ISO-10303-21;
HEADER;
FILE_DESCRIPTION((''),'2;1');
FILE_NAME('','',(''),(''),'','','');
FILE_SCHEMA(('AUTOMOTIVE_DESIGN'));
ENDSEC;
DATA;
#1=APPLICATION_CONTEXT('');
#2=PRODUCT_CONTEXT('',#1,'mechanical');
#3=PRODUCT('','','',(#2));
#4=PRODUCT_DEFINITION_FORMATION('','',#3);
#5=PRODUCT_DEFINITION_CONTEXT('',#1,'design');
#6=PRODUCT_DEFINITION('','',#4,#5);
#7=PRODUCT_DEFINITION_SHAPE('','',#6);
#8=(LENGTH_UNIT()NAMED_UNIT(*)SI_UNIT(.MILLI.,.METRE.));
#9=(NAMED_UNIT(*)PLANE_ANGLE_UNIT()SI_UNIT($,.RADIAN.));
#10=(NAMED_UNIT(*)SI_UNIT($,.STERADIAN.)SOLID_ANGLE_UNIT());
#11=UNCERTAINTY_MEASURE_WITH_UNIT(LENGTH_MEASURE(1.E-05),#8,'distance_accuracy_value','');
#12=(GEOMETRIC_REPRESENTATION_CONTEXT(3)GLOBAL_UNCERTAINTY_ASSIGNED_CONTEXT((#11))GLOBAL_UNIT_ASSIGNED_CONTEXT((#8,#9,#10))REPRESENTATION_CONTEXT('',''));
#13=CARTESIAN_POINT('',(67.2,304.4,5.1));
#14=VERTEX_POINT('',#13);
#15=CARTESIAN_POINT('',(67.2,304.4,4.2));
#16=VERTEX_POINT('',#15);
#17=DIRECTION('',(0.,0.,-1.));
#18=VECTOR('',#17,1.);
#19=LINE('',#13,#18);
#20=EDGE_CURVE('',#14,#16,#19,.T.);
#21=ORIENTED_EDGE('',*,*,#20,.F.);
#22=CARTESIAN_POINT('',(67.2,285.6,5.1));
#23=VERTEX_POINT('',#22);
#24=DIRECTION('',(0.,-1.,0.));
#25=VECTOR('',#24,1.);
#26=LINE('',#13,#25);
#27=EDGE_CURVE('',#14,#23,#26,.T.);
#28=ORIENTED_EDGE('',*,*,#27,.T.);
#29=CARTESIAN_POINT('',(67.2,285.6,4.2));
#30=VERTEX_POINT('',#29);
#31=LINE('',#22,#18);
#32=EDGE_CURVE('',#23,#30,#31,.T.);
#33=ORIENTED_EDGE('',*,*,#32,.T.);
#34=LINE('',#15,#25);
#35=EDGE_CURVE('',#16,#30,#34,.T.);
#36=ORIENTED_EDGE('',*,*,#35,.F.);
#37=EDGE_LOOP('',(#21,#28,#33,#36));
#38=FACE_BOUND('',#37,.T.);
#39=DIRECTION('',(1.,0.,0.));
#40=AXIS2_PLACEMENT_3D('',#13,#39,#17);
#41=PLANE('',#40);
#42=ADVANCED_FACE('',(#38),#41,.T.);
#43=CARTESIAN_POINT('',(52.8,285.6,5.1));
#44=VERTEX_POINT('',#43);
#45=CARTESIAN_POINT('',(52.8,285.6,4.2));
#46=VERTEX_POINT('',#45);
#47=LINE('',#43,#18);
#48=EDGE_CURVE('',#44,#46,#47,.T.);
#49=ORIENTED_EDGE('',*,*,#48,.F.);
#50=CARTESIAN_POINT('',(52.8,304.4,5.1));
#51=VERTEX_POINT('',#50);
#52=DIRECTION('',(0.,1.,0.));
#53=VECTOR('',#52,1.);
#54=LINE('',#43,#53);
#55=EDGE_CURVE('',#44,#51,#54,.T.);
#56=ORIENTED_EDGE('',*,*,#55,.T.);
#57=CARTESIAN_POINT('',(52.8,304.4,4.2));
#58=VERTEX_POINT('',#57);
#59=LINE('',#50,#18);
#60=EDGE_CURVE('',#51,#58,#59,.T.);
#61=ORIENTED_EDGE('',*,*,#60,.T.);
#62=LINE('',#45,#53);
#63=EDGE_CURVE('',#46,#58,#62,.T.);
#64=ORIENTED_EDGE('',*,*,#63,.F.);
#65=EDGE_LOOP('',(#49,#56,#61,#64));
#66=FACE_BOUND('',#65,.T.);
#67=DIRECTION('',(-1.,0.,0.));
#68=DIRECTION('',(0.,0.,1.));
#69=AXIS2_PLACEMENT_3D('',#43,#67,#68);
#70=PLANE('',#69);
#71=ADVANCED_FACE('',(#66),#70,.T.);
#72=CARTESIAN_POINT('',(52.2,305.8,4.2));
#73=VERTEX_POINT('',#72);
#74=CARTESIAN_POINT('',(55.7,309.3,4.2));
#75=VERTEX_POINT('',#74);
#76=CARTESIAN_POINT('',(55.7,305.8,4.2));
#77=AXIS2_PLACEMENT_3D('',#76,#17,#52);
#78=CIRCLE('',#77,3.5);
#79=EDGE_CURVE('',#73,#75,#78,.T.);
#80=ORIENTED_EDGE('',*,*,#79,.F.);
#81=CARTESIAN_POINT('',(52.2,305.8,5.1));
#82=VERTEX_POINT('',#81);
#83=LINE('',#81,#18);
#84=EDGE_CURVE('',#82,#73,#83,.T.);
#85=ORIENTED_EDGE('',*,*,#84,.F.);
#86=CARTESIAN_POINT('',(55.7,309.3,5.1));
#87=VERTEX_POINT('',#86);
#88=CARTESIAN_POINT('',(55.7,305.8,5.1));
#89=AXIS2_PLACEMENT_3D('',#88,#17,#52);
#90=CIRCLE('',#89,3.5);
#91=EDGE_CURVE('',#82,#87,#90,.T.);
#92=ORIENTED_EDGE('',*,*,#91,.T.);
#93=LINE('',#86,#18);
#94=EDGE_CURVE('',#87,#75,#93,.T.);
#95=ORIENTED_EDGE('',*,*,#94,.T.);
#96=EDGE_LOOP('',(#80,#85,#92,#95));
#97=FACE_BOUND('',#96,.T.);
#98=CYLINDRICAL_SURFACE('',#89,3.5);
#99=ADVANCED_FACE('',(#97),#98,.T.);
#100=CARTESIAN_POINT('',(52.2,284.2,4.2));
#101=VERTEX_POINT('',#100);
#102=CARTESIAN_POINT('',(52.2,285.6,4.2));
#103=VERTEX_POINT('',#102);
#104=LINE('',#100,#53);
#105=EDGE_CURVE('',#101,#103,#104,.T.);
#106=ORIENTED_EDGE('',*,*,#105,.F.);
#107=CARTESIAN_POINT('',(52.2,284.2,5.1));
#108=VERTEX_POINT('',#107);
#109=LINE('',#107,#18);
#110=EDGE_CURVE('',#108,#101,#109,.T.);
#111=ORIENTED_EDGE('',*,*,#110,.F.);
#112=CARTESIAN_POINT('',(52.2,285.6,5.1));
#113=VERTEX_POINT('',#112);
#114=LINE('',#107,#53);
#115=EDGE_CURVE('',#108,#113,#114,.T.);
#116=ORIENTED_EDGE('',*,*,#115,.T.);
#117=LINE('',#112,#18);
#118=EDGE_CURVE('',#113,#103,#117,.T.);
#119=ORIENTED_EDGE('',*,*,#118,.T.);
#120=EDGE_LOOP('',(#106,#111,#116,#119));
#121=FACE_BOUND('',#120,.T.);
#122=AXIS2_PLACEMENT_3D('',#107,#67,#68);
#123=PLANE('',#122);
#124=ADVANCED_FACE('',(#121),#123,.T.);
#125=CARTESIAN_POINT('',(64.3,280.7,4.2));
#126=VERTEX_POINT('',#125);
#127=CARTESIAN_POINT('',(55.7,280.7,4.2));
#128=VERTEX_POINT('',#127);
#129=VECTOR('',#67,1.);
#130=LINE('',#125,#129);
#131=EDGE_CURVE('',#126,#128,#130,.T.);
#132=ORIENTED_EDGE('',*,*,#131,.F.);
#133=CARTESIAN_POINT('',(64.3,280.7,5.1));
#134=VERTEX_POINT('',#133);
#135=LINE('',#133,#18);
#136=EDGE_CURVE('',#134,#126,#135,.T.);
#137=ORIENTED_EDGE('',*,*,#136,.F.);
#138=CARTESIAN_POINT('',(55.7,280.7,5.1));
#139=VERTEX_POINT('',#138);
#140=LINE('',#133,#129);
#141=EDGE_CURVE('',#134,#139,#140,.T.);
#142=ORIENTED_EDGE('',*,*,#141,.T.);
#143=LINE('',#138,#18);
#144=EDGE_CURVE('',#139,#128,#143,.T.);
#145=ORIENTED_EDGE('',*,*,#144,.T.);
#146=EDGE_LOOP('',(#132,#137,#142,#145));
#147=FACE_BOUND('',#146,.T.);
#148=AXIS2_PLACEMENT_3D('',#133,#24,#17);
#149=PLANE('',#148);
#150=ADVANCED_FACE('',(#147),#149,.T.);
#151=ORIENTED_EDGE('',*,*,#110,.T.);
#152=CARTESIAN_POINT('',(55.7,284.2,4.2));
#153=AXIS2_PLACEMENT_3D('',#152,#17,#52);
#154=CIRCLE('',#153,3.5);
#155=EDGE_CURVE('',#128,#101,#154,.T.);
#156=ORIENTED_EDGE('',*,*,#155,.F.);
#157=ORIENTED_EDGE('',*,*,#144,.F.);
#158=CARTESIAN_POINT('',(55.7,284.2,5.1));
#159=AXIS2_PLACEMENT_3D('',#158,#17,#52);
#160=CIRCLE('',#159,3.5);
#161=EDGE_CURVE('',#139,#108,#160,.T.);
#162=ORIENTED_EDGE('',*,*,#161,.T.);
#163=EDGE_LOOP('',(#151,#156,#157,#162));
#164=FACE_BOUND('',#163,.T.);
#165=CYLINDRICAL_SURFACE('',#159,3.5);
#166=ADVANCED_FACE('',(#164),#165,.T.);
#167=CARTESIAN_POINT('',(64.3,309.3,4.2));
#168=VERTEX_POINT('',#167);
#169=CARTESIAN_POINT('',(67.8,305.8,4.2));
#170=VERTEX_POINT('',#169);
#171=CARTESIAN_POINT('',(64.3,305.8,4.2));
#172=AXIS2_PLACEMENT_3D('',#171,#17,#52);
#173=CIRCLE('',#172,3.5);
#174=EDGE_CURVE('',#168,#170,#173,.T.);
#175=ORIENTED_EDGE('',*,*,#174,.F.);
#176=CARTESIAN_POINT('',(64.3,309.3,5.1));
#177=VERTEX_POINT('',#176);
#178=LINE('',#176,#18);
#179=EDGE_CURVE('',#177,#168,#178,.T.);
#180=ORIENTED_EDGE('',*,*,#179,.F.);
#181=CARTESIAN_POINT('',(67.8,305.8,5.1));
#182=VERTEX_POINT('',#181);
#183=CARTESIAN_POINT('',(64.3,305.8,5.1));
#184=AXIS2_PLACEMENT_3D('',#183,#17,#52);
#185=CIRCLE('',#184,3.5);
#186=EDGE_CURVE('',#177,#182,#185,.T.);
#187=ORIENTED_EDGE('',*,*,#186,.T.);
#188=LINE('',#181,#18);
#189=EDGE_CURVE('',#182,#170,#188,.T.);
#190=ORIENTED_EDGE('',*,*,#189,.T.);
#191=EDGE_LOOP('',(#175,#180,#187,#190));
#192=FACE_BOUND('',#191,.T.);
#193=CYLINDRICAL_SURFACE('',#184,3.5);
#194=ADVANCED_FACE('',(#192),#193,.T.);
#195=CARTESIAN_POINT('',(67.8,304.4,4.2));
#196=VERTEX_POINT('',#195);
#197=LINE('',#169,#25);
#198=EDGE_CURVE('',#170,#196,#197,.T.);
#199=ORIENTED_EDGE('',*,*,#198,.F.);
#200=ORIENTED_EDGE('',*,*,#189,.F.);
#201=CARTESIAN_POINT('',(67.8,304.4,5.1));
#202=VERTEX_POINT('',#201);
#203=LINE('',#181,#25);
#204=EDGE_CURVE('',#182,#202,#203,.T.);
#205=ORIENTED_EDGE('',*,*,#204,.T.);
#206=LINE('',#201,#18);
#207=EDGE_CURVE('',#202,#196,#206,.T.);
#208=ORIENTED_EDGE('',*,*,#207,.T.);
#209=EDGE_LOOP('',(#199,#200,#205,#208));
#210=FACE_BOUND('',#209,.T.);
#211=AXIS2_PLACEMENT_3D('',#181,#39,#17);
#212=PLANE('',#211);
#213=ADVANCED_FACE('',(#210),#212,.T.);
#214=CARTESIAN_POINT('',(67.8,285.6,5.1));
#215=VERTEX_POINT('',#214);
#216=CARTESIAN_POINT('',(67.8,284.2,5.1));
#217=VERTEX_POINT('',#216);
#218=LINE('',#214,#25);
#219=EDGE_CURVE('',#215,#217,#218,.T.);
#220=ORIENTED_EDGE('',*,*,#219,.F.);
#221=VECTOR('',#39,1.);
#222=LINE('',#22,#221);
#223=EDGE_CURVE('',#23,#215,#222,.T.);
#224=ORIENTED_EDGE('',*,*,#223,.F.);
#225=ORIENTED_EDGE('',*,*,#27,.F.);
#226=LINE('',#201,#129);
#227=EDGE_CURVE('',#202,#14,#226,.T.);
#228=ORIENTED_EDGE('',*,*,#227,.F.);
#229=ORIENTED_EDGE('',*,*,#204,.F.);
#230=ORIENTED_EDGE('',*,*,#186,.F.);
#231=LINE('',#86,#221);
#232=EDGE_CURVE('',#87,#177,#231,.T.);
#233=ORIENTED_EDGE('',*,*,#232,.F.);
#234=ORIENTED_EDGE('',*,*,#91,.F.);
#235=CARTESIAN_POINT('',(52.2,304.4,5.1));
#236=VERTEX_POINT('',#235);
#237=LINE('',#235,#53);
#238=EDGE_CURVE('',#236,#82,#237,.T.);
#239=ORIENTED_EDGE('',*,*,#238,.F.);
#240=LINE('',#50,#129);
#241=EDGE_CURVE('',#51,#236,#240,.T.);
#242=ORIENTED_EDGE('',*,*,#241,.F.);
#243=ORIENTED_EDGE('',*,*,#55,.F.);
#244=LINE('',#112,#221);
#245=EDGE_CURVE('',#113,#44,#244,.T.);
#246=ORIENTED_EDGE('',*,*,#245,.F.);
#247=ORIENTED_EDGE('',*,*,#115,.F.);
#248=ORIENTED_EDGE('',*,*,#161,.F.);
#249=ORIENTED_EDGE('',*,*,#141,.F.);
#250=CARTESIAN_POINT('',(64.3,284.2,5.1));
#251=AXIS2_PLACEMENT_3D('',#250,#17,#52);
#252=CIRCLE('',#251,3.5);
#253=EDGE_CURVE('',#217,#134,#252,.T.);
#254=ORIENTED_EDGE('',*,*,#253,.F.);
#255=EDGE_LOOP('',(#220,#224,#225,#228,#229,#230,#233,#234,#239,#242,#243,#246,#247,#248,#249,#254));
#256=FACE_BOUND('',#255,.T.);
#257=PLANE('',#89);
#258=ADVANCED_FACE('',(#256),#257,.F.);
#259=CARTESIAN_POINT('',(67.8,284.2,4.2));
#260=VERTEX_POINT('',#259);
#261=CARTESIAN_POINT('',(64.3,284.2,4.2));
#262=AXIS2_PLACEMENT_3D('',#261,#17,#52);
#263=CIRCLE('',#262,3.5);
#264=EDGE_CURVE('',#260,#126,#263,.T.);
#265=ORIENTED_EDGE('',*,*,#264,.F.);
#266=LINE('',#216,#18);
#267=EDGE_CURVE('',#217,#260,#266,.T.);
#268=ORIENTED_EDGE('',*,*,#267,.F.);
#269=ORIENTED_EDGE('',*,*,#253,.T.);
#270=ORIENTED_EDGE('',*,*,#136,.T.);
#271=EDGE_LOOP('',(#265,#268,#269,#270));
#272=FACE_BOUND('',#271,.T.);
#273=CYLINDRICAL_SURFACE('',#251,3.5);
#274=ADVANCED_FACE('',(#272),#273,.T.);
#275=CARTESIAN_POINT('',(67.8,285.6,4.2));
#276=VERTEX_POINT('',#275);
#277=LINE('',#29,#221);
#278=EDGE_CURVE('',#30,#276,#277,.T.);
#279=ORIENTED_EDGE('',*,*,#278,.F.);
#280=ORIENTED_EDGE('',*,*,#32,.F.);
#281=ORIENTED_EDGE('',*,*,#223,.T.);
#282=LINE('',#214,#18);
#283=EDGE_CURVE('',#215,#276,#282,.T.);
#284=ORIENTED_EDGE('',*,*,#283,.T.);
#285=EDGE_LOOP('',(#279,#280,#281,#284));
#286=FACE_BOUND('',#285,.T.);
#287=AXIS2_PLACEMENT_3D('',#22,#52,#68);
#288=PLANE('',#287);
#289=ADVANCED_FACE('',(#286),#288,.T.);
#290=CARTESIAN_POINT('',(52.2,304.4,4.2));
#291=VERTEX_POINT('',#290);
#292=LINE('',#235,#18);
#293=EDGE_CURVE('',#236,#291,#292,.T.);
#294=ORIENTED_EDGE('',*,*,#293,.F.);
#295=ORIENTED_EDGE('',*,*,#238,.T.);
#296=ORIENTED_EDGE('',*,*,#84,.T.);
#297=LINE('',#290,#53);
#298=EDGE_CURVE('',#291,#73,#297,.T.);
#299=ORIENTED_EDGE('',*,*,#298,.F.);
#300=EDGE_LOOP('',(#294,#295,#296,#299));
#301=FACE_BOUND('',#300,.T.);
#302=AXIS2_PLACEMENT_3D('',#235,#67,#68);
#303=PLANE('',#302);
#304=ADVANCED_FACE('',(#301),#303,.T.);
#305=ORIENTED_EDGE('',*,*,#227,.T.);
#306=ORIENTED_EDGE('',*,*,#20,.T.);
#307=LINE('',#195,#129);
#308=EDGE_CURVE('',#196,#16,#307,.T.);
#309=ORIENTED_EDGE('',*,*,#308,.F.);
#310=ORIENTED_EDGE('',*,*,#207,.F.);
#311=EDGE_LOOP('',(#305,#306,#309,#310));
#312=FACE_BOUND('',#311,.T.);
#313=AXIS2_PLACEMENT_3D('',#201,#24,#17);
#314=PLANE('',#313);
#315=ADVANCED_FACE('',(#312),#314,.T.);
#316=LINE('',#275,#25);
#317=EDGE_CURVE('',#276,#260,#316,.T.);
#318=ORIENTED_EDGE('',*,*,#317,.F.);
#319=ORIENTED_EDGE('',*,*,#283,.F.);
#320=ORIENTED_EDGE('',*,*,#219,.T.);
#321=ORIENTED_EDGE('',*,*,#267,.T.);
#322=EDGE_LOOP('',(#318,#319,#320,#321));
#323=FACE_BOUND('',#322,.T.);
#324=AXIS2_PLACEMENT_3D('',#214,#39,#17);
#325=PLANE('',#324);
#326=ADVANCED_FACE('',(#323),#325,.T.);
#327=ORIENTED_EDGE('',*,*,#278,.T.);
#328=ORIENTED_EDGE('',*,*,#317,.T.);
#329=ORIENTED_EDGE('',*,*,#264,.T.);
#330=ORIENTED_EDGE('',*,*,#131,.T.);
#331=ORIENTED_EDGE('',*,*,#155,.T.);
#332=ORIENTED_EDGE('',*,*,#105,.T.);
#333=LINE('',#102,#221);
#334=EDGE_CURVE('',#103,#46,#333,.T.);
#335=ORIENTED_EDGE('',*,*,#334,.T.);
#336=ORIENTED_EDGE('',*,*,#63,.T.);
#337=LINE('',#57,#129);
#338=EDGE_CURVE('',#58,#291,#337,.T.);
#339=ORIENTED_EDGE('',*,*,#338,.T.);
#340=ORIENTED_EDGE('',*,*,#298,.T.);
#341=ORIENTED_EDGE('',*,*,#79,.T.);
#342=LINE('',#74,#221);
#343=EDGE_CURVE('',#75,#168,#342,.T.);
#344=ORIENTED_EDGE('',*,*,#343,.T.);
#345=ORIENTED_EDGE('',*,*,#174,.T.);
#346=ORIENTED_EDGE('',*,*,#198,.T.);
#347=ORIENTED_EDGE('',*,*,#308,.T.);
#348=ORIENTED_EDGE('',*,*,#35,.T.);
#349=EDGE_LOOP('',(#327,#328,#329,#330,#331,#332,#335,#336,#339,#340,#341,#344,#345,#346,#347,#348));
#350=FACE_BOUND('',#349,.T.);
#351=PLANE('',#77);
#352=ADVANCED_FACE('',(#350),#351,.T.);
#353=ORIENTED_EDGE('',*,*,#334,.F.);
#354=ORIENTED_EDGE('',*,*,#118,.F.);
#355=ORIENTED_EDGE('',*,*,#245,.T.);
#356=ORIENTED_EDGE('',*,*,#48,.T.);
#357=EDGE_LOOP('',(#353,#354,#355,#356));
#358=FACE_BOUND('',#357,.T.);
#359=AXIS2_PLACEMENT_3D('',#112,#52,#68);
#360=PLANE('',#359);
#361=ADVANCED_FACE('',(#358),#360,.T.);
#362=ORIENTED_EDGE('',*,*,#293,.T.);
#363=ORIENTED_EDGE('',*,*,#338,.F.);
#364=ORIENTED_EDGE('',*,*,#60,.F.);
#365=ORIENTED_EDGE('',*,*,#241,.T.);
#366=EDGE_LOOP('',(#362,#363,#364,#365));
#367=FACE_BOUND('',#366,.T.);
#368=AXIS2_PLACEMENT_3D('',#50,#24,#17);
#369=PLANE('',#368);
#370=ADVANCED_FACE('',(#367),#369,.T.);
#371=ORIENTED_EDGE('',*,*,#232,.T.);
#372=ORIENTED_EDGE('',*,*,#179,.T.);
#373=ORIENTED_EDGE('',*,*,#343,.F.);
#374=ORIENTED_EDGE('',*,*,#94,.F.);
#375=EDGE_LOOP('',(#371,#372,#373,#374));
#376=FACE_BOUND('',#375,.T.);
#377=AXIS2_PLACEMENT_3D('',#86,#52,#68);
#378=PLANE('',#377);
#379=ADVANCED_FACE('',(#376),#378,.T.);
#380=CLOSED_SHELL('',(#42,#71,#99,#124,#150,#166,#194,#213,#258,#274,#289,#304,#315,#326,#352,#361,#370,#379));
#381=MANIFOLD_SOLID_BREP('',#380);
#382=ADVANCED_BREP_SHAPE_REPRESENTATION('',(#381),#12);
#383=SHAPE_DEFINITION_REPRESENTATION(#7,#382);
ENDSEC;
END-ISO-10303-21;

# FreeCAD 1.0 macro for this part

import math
import FreeCAD as App
import Part
import Sketcher

V = App.Vector
Q = App.Units.Quantity

doc = App.newDocument("Part")
params = doc.addObject("Spreadsheet::Sheet", "Params")
for row, (alias, value) in enumerate([
    ("sketch1_radius", "3.5 mm"),
    ("sketch1_width", "8.6 mm"),
    ("sketch1_width2", "0.6 mm"),
    ("sketch1_height", "1.4 mm"),
    ("sketch1_height2", "18.8 mm"),
    ("pad1_length", "0.9 mm"),
], start=1):
    params.set(f"A{row}", alias)
    params.set(f"B{row}", "=" + value)
    params.setAlias(f"B{row}", alias)

body = doc.addObject("PartDesign::Body", "Body")

# Sketch on XY plane
sketch1 = body.newObject("Sketcher::SketchObject", "Sketch")
sketch1.AttachmentSupport = (doc.getObject("XY_Plane"), [""])
sketch1.MapMode = "FlatFace"
sketch1.AttachmentOffset = App.Placement(V(0, 0, 4.2), App.Rotation())
sketch1.addGeometry([
    Part.LineSegment(V(55.7, 309.3, 0), V(64.3, 309.3, 0)),  # 0
    Part.ArcOfCircle(Part.Circle(V(64.3, 305.8, 0), V(0, 0, 1), 3.5), math.radians(0), math.radians(90)),  # 1
    Part.LineSegment(V(67.8, 305.8, 0), V(67.8, 304.4, 0)),  # 2
    Part.LineSegment(V(67.8, 304.4, 0), V(67.2, 304.4, 0)),  # 3
    Part.LineSegment(V(67.2, 304.4, 0), V(67.2, 285.6, 0)),  # 4
    Part.LineSegment(V(67.2, 285.6, 0), V(67.8, 285.6, 0)),  # 5
    Part.LineSegment(V(67.8, 285.6, 0), V(67.8, 284.2, 0)),  # 6
    Part.ArcOfCircle(Part.Circle(V(64.3, 284.2, 0), V(0, 0, 1), 3.5), math.radians(-90), math.radians(0)),  # 7
    Part.LineSegment(V(64.3, 280.7, 0), V(55.7, 280.7, 0)),  # 8
    Part.ArcOfCircle(Part.Circle(V(55.7, 284.2, 0), V(0, 0, 1), 3.5), math.radians(-180), math.radians(-90)),  # 9
    Part.LineSegment(V(52.2, 284.2, 0), V(52.2, 285.6, 0)),  # 10
    Part.LineSegment(V(52.2, 285.6, 0), V(52.8, 285.6, 0)),  # 11
    Part.LineSegment(V(52.8, 285.6, 0), V(52.8, 304.4, 0)),  # 12
    Part.LineSegment(V(52.8, 304.4, 0), V(52.2, 304.4, 0)),  # 13
    Part.LineSegment(V(52.2, 304.4, 0), V(52.2, 305.8, 0)),  # 14
    Part.ArcOfCircle(Part.Circle(V(55.7, 305.8, 0), V(0, 0, 1), 3.5), math.radians(90), math.radians(180)),  # 15
], False)
sketch1.addConstraint([
    Sketcher.Constraint("Tangent", 0, 2, 1, 2),
    Sketcher.Constraint("Tangent", 1, 1, 2, 1),
    Sketcher.Constraint("Coincident", 2, 2, 3, 1),
    Sketcher.Constraint("Coincident", 3, 2, 4, 1),
    Sketcher.Constraint("Coincident", 4, 2, 5, 1),
    Sketcher.Constraint("Coincident", 5, 2, 6, 1),
    Sketcher.Constraint("Tangent", 6, 2, 7, 2),
    Sketcher.Constraint("Tangent", 7, 1, 8, 1),
    Sketcher.Constraint("Tangent", 8, 2, 9, 2),
    Sketcher.Constraint("Tangent", 9, 1, 10, 1),
    Sketcher.Constraint("Coincident", 10, 2, 11, 1),
    Sketcher.Constraint("Coincident", 11, 2, 12, 1),
    Sketcher.Constraint("Coincident", 12, 2, 13, 1),
    Sketcher.Constraint("Coincident", 13, 2, 14, 1),
    Sketcher.Constraint("Tangent", 14, 2, 15, 2),
    Sketcher.Constraint("Tangent", 15, 1, 0, 1),
    Sketcher.Constraint("Horizontal", 0),
    Sketcher.Constraint("Vertical", 2),
    Sketcher.Constraint("Horizontal", 3),
    Sketcher.Constraint("Vertical", 4),
    Sketcher.Constraint("Horizontal", 5),
    Sketcher.Constraint("Vertical", 6),
    Sketcher.Constraint("Horizontal", 8),
    Sketcher.Constraint("Vertical", 10),
    Sketcher.Constraint("Horizontal", 11),
    Sketcher.Constraint("Vertical", 12),
    Sketcher.Constraint("Horizontal", 13),
    Sketcher.Constraint("Vertical", 14),
    Sketcher.Constraint("Equal", 1, 7),
    Sketcher.Constraint("Equal", 7, 9),
    Sketcher.Constraint("Equal", 9, 15),
    Sketcher.Constraint("Horizontal", 5, 2, 10, 2),
    Sketcher.Constraint("Horizontal", 3, 2, 12, 2),
    Sketcher.Constraint("Vertical", 1, 3, 7, 3),
    Sketcher.Constraint("Vertical", 9, 3, 15, 3),
    Sketcher.Constraint("Equal", 5, 11),
    Sketcher.Constraint("Equal", 2, 6),
    Sketcher.Constraint("Radius", 1, Q("3.5 mm")),
    Sketcher.Constraint("DistanceX", 0, 1, 0, 2, Q("8.6 mm")),
    Sketcher.Constraint("DistanceX", 3, 2, 3, 1, Q("0.6 mm")),
    Sketcher.Constraint("DistanceY", 2, 2, 2, 1, Q("1.4 mm")),
    Sketcher.Constraint("DistanceY", 4, 2, 4, 1, Q("18.8 mm")),
    Sketcher.Constraint("DistanceX", -1, 1, 1, 3, Q("64.3 mm")),
    Sketcher.Constraint("DistanceY", -1, 1, 1, 3, Q("305.8 mm")),
])
sketch1.setExpression("Constraints[37]", "Params.sketch1_radius")
sketch1.setExpression("Constraints[38]", "Params.sketch1_width")
sketch1.setExpression("Constraints[39]", "Params.sketch1_width2")
sketch1.setExpression("Constraints[40]", "Params.sketch1_height")
sketch1.setExpression("Constraints[41]", "Params.sketch1_height2")
pad1 = body.newObject("PartDesign::Pad", "Pad")
pad1.Profile = sketch1
pad1.setExpression("Length", "Params.pad1_length")

doc.recompute()
